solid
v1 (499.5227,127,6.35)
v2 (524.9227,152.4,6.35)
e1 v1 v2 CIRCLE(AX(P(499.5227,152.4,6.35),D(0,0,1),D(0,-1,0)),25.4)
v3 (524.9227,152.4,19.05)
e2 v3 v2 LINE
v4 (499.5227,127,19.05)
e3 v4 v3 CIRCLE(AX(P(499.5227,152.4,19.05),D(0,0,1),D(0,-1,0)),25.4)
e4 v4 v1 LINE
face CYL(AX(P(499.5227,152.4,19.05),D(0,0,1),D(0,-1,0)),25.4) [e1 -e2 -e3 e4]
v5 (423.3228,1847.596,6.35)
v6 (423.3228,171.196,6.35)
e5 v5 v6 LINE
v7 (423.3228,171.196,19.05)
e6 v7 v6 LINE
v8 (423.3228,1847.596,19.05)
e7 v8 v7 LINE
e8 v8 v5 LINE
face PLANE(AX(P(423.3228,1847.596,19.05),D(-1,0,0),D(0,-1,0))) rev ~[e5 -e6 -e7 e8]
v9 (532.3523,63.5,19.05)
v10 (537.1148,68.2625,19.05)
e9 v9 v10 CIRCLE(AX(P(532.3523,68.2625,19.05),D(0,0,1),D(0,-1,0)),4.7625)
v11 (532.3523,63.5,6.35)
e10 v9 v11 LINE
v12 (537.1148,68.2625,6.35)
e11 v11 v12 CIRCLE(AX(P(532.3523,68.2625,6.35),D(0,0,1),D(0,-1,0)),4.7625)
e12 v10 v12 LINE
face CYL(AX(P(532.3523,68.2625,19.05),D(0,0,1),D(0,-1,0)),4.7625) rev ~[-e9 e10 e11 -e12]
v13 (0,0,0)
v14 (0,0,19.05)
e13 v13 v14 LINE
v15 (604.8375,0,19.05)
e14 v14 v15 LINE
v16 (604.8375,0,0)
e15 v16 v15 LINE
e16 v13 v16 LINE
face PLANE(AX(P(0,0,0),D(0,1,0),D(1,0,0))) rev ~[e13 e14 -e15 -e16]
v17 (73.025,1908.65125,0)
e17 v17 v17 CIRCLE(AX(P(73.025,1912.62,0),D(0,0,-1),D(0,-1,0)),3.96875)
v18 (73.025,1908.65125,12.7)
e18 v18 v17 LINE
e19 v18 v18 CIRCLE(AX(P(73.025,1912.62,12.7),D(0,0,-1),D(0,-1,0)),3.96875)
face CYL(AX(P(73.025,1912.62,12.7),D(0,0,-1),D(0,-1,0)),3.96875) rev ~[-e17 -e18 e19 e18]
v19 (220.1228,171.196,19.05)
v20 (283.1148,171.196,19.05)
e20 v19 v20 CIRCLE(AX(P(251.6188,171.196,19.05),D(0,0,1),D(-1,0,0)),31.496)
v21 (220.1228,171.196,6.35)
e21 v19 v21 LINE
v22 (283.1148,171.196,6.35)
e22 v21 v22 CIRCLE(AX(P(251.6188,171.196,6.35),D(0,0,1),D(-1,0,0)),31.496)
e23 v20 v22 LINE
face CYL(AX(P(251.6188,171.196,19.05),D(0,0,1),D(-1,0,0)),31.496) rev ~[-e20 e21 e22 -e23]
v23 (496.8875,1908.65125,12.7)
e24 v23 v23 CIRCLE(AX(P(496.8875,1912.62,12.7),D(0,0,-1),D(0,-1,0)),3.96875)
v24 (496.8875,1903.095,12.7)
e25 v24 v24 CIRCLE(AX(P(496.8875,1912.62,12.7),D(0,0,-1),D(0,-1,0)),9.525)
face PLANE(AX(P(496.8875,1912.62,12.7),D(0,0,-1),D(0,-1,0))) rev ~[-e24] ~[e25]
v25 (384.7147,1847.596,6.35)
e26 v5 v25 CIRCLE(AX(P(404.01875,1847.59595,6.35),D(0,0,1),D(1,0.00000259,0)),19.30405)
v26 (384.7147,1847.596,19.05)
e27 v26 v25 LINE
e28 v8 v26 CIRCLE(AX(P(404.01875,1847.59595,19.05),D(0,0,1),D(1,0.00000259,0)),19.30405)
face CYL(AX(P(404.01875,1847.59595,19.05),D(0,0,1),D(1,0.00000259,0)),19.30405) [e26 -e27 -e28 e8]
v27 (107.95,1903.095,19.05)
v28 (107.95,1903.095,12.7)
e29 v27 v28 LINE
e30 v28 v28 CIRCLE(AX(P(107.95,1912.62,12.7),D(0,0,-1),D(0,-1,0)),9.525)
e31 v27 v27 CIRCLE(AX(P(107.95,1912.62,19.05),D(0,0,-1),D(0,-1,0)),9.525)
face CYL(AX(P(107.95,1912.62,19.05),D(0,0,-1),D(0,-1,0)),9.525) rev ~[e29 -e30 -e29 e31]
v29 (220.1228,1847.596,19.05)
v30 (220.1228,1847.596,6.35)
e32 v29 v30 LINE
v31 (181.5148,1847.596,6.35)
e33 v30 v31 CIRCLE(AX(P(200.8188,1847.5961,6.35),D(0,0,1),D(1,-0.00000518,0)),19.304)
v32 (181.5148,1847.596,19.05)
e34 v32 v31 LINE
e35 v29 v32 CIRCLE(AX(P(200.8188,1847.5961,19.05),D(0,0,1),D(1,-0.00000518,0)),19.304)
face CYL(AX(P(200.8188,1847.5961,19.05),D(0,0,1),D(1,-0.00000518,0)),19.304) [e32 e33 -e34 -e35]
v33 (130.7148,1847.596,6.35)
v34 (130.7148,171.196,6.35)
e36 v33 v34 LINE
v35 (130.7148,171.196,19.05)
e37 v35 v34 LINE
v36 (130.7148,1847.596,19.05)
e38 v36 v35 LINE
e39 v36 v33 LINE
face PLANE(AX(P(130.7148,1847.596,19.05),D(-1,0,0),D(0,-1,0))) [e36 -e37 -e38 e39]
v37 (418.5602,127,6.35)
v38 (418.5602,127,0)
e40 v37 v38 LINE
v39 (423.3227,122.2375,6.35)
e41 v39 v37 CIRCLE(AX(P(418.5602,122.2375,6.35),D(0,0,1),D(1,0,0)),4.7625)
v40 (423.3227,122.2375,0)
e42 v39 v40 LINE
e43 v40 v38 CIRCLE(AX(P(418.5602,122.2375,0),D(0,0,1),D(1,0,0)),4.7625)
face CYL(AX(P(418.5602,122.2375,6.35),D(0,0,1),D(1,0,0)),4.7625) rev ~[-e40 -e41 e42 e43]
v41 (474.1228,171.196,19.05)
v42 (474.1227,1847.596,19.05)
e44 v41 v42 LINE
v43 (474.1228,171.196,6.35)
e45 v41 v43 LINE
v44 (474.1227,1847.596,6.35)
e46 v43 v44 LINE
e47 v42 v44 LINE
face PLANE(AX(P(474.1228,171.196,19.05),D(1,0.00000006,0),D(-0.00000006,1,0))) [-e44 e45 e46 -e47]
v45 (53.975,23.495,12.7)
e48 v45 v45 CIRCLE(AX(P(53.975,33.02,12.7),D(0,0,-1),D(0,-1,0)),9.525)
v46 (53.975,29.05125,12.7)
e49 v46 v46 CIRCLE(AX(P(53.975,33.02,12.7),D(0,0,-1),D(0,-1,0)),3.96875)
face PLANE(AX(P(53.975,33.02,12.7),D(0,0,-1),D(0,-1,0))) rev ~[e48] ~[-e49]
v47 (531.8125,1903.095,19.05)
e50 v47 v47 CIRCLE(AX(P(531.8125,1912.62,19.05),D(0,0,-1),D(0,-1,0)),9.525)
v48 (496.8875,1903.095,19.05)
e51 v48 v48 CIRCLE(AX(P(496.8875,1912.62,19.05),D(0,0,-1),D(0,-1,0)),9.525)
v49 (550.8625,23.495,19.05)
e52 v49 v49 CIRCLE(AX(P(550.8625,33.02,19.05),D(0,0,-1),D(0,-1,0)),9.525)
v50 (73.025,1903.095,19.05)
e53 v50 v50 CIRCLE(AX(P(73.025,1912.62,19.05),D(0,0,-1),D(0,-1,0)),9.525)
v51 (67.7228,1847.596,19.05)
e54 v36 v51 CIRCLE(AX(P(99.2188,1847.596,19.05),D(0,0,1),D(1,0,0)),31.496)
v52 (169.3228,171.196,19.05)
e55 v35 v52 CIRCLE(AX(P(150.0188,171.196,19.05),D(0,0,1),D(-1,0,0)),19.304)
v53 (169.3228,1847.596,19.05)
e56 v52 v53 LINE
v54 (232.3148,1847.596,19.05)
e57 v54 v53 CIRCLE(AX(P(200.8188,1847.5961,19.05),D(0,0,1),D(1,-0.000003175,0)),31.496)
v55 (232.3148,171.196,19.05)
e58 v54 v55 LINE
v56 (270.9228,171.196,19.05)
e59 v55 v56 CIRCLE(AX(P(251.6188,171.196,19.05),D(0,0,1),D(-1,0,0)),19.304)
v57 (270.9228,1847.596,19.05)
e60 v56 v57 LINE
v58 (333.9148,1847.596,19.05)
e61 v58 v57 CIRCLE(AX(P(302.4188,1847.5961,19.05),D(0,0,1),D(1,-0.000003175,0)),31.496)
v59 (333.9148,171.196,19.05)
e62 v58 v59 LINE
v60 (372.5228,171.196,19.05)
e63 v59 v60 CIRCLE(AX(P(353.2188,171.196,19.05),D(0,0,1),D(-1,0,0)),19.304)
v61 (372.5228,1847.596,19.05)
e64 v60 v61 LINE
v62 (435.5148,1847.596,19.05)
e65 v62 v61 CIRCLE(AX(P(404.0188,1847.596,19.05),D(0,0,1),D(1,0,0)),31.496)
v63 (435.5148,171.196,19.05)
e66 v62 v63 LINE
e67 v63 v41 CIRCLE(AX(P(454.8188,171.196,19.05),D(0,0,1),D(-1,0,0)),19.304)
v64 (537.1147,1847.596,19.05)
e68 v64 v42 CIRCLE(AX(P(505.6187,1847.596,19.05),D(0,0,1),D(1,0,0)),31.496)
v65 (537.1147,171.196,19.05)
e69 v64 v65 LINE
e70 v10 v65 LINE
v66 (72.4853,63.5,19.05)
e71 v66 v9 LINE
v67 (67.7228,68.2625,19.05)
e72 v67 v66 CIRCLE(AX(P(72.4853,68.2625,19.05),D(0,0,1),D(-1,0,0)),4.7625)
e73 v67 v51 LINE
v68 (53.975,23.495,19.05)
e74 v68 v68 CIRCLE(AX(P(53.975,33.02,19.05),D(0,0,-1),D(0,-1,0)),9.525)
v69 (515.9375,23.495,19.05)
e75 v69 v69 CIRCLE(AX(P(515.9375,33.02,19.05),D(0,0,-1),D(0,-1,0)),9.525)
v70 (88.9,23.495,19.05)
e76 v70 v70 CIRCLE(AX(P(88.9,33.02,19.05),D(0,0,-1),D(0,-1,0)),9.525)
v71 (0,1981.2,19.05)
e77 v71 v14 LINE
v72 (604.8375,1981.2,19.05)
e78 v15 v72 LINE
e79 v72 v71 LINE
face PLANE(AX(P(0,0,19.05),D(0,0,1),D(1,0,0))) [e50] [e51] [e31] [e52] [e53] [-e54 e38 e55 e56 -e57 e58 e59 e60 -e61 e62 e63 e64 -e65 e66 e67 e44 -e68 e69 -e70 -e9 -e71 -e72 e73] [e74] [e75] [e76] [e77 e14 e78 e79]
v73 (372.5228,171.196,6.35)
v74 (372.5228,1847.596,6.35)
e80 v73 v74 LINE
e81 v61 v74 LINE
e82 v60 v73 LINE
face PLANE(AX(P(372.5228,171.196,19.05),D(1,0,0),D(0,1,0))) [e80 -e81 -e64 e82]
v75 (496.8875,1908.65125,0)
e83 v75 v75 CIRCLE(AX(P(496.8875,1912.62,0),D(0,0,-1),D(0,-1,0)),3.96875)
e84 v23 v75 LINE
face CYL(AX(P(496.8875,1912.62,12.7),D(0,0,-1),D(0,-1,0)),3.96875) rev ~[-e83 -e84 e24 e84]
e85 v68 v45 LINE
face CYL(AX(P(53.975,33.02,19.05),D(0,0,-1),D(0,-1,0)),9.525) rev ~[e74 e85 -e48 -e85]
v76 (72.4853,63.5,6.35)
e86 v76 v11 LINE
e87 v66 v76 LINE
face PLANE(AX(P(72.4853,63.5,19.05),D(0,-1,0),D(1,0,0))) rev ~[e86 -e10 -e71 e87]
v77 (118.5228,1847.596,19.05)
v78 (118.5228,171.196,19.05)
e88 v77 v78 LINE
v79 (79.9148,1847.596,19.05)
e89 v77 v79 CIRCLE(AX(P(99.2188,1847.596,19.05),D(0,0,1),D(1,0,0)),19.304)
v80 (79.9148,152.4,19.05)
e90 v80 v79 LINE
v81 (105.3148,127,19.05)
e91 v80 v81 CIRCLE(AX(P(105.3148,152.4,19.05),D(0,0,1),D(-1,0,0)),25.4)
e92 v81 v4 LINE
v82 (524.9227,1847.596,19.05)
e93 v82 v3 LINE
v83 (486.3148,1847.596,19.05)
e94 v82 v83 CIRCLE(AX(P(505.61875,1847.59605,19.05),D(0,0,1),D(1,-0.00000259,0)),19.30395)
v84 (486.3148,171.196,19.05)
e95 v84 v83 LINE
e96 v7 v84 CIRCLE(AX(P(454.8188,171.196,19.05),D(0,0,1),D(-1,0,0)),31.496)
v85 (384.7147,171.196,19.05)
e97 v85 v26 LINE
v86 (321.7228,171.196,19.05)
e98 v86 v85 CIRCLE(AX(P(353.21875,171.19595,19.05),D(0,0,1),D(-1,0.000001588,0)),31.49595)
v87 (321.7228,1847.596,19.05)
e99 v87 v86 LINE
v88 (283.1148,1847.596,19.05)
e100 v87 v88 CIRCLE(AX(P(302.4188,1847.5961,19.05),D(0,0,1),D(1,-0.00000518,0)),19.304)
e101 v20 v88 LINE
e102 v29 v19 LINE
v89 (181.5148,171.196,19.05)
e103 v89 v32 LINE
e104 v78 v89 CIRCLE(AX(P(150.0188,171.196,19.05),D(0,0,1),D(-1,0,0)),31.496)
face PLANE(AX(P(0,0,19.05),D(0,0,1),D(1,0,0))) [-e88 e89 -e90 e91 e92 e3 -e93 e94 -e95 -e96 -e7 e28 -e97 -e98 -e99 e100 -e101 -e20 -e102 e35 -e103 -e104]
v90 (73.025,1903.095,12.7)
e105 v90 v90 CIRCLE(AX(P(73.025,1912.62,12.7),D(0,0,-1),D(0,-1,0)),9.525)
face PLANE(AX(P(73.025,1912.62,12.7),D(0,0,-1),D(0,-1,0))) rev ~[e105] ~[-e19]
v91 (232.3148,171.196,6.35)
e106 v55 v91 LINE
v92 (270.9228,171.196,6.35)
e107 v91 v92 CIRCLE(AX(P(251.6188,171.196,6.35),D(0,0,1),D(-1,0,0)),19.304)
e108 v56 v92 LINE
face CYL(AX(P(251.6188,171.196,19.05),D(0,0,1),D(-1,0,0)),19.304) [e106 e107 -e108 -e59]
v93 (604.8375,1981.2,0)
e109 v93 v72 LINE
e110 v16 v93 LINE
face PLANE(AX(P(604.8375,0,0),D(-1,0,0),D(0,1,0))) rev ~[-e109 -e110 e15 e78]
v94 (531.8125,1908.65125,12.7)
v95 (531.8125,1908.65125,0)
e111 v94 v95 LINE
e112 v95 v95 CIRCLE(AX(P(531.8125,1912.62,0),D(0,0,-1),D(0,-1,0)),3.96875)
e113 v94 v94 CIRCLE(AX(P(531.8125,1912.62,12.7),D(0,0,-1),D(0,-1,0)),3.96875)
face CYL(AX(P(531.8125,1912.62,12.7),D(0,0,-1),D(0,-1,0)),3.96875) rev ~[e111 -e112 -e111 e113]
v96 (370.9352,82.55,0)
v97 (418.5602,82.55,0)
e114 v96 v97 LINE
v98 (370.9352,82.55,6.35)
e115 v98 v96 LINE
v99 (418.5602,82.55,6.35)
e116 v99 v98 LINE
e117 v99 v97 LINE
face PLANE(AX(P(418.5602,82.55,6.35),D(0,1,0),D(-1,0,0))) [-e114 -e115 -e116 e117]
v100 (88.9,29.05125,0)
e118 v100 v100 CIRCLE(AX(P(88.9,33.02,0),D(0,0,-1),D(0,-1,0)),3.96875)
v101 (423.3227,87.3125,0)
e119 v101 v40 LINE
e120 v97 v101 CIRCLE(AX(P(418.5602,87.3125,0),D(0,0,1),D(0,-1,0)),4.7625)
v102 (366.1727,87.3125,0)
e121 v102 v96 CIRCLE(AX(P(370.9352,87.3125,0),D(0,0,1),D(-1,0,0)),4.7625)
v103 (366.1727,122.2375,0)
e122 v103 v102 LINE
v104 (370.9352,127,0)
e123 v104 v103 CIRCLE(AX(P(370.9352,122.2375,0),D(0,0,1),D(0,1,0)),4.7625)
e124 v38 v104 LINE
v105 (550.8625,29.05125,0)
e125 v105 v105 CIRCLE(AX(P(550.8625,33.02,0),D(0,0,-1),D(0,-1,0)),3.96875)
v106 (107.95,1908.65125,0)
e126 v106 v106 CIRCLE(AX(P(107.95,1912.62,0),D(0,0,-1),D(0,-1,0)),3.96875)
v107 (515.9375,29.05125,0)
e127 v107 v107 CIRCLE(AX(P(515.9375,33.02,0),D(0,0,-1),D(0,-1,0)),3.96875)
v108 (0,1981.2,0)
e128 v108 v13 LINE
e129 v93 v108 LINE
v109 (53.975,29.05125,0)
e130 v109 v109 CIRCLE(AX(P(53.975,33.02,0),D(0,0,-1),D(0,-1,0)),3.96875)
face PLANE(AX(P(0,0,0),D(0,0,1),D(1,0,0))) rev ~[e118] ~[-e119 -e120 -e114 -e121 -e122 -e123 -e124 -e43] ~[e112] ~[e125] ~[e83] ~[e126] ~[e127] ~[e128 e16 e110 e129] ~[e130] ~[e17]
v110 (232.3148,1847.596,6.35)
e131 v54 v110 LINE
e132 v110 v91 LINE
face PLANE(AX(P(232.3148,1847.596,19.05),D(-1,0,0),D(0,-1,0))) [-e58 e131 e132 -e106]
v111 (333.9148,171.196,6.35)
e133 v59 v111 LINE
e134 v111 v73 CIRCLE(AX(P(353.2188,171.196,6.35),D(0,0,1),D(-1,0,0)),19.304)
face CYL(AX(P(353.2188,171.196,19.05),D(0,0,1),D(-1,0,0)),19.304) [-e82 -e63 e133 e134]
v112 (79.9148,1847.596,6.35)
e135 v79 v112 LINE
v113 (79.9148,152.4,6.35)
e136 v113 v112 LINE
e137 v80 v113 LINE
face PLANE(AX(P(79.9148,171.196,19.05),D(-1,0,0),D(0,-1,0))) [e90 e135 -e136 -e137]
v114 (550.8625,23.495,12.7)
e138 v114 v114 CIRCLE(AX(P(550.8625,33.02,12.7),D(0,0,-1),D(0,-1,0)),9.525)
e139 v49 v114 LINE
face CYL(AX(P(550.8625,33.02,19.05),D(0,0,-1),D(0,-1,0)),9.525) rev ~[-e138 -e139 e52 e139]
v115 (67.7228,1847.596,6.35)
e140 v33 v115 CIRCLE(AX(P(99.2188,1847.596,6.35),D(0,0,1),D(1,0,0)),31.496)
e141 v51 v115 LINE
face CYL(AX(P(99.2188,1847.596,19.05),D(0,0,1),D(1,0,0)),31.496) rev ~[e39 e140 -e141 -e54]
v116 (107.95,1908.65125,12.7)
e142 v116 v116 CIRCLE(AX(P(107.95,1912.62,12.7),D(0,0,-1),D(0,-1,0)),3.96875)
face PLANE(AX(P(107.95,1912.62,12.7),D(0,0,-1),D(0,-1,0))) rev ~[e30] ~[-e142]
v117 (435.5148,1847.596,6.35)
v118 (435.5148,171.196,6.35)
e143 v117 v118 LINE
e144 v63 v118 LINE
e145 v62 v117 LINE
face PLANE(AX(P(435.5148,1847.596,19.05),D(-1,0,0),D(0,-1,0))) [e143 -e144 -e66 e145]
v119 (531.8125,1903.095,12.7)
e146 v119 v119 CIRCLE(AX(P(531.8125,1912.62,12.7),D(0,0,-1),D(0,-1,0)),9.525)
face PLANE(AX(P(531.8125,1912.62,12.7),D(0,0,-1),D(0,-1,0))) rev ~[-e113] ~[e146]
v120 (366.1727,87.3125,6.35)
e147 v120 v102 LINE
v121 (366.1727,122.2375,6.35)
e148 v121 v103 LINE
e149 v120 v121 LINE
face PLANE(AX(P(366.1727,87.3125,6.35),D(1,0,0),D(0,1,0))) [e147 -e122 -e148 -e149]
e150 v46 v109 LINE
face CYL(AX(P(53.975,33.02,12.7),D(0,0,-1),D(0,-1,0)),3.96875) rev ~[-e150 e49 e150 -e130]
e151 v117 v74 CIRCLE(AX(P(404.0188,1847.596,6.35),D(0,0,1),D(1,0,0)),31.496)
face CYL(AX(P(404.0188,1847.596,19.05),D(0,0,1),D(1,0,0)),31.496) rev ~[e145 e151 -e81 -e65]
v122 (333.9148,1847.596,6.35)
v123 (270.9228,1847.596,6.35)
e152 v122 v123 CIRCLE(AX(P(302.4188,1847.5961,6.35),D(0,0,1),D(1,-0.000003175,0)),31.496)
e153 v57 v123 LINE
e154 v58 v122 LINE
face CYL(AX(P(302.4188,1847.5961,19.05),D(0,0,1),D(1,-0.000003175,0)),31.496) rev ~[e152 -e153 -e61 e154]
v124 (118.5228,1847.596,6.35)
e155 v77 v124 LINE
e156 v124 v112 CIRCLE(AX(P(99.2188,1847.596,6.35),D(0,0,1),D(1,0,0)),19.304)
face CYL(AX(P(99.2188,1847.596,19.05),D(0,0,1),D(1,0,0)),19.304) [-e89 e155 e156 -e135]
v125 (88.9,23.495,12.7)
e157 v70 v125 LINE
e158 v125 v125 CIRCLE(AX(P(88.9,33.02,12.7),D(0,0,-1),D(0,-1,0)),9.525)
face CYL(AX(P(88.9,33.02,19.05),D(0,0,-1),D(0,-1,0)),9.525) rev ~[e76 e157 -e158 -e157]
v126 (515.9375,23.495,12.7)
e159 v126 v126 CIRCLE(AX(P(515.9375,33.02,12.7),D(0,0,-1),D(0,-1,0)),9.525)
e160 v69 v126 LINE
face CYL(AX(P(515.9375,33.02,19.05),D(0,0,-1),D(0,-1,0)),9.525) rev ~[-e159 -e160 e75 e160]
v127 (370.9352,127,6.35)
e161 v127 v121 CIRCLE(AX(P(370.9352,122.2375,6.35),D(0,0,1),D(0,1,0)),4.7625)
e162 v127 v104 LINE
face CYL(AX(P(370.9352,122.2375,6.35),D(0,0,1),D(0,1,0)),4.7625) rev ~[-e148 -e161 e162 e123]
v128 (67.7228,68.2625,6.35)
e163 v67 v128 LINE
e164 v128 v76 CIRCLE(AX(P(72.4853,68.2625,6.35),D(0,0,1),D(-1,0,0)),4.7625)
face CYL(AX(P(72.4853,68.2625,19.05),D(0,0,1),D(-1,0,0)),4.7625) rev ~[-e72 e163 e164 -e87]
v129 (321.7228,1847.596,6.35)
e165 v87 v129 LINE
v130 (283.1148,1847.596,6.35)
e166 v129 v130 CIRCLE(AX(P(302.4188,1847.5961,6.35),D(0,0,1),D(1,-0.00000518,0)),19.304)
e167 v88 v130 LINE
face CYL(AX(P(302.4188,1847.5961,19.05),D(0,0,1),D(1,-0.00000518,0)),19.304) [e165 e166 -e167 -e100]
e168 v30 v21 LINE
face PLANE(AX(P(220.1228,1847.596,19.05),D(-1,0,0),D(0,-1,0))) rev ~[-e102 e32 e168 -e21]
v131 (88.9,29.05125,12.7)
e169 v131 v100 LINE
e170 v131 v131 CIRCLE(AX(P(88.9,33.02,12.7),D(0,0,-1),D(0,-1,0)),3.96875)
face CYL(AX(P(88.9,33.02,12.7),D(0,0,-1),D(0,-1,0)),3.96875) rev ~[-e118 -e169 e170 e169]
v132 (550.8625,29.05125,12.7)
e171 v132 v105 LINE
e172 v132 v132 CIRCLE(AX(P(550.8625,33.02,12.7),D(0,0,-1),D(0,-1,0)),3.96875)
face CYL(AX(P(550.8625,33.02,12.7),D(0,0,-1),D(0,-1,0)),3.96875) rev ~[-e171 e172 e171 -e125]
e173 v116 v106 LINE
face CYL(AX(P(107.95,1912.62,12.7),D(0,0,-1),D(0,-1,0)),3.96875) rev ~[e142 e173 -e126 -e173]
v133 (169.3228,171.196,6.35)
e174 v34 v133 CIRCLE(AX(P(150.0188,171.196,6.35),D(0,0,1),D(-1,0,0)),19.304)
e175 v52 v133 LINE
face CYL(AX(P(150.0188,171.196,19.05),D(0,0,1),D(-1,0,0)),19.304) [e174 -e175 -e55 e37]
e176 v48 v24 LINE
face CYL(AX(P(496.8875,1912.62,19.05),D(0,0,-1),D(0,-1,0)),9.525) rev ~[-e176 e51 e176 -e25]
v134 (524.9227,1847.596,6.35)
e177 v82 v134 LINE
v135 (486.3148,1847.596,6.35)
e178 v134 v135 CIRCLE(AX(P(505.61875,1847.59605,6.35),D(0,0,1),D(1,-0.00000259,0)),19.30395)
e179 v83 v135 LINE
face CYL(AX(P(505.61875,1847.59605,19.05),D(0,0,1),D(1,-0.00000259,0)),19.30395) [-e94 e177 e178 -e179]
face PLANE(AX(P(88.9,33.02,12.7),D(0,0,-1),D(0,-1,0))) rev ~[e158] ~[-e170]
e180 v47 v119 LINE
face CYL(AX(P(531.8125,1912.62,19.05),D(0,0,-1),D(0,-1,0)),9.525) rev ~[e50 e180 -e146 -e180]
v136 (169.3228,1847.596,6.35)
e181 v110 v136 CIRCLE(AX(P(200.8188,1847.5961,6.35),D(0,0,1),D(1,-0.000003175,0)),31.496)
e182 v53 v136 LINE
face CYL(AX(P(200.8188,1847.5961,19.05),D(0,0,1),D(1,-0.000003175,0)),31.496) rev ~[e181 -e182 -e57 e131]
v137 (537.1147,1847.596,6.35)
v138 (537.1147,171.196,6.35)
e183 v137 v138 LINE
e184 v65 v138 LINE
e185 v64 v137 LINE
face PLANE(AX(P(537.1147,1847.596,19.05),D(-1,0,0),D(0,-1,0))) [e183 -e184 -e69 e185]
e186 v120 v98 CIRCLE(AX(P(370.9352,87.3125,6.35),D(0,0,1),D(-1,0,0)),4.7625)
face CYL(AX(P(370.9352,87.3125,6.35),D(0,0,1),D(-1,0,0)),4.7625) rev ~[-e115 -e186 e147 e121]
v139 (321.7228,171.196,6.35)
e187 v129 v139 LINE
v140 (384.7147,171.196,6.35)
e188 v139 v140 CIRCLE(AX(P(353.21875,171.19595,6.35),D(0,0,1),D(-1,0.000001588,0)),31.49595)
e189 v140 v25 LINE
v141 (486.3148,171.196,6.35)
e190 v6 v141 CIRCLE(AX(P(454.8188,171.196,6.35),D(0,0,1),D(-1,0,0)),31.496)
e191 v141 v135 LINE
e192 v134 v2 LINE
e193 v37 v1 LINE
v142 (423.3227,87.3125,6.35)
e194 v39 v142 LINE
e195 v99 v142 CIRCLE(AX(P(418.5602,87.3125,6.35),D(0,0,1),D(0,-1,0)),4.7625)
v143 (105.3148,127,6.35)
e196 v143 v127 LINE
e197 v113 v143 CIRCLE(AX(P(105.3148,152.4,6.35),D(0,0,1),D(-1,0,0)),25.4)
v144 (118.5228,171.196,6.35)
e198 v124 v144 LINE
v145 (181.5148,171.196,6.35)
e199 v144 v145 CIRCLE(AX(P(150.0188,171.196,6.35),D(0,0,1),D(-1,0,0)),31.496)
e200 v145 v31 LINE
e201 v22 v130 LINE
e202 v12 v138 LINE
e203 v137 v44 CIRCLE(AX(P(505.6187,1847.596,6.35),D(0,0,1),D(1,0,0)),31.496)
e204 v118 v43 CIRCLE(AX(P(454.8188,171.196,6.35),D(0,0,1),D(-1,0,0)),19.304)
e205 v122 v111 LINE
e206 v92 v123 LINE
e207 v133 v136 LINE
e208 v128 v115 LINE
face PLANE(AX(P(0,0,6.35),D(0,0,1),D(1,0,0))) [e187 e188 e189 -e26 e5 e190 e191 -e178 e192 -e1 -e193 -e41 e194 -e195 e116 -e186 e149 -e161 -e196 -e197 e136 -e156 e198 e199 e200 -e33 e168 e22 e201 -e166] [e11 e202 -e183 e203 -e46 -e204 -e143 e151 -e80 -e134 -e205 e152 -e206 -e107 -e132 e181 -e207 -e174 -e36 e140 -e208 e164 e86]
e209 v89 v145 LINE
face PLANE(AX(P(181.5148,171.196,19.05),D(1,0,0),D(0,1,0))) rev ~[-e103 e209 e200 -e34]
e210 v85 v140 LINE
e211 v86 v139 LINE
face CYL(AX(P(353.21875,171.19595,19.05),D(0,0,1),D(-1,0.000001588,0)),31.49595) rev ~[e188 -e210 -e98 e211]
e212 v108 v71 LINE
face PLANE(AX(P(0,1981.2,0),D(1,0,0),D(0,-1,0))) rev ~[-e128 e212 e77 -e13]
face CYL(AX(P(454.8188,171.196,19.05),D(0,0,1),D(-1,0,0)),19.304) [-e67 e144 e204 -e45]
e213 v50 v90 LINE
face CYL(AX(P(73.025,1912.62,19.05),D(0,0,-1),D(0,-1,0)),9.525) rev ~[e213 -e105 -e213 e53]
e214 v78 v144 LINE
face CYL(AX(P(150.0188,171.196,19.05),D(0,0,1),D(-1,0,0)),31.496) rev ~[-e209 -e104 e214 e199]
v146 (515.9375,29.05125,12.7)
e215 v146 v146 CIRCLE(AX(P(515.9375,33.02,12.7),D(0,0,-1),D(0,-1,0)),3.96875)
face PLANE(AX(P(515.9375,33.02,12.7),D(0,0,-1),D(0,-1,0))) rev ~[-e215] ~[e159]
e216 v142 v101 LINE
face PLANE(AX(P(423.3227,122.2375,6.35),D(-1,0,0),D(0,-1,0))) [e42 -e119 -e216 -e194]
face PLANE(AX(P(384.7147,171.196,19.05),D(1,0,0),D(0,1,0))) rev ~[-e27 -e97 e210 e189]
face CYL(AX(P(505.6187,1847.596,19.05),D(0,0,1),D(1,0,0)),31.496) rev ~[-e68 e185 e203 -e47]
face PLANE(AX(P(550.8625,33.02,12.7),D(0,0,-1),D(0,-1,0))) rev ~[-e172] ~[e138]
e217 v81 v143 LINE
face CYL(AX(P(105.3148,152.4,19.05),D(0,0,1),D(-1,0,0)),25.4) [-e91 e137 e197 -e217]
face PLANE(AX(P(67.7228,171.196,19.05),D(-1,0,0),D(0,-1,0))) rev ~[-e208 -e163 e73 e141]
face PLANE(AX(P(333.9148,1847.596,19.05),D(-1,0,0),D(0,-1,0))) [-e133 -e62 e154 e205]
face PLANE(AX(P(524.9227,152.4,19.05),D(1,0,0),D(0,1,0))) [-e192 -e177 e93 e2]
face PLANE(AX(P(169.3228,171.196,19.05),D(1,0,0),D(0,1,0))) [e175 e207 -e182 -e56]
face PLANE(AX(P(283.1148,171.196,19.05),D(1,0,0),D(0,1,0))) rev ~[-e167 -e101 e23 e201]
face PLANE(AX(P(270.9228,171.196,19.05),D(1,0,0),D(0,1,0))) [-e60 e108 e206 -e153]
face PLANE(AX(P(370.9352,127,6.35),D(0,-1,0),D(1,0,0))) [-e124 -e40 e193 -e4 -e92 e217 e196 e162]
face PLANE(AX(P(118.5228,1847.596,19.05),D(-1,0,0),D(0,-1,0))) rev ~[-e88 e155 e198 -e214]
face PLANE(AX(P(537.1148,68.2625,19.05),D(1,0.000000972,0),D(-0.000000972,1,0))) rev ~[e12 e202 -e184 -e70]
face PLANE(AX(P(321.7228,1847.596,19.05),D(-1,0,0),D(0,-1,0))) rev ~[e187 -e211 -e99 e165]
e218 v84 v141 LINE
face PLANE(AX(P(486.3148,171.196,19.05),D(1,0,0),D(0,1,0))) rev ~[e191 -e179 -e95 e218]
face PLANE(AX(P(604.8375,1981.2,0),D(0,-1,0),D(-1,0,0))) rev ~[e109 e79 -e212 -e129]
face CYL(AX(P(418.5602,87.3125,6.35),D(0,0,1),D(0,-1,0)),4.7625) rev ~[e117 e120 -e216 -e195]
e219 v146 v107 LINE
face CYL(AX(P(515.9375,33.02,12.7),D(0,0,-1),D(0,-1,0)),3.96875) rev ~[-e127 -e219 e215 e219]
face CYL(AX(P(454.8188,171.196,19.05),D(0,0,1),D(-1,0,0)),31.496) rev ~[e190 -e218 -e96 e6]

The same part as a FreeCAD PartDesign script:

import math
import FreeCAD as App
import Part
import Sketcher
from FreeCAD import Vector
Q = App.Units.Quantity

doc = App.newDocument("Part")
body = doc.addObject("PartDesign::Body", "Body")

# Sketch on XY plane
sketch1 = body.newObject("Sketcher::SketchObject", "Sketch")
sketch1.AttachmentSupport = (doc.getObject("XY_Plane"), [""])
sketch1.MapMode = "FlatFace"
sketch1.addGeometry([
    Part.LineSegment(Vector(0, 1981, 0), Vector(0, 0, 0)),
    Part.LineSegment(Vector(0, 0, 0), Vector(605, 0, 0)),
    Part.LineSegment(Vector(605, 0, 0), Vector(605, 1981, 0)),
    Part.LineSegment(Vector(605, 1981, 0), Vector(0, 1981, 0)),
], False)
sketch1.addConstraint([
    Sketcher.Constraint("Coincident", 0, 2, 1, 1),
    Sketcher.Constraint("Coincident", 1, 2, 2, 1),
    Sketcher.Constraint("Coincident", 2, 2, 3, 1),
    Sketcher.Constraint("Coincident", 3, 2, 0, 1),
    Sketcher.Constraint("Vertical", 0),
    Sketcher.Constraint("Horizontal", 1),
    Sketcher.Constraint("Vertical", 2),
    Sketcher.Constraint("Horizontal", 3),
    Sketcher.Constraint("Coincident", 0, 2, -1, 1),
    Sketcher.Constraint("DistanceY", 0, 2, 0, 1, Q("78 in")),
    Sketcher.Constraint("DistanceX", 1, 1, 1, 2, Q("23.8125 in")),
])
pad1 = body.newObject("PartDesign::Pad", "Pad")
pad1.Profile = sketch1
pad1.Length = Q("0.75 in")

# Sketch on XY plane
sketch2 = body.newObject("Sketcher::SketchObject", "Sketch001")
sketch2.AttachmentSupport = (doc.getObject("XY_Plane"), [""])
sketch2.MapMode = "FlatFace"
sketch2.AttachmentOffset = App.Placement(Vector(0, 0, 0.75 * 25.4), App.Rotation())
sketch2.addGeometry([
    Part.LineSegment(Vector(67.7, 1847.6, 0), Vector(67.7, 68.3, 0)),  # 0
    Part.ArcOfCircle(Part.Circle(Vector(72.5, 68.3, 0), Vector(0, 0, 1), 4.8), math.radians(180), math.radians(270)),  # 1
    Part.LineSegment(Vector(72.5, 63.5, 0), Vector(532.4, 63.5, 0)),  # 2
    Part.ArcOfCircle(Part.Circle(Vector(532.4, 68.3, 0), Vector(0, 0, 1), 4.8), math.radians(-90), math.radians(0)),  # 3
    Part.LineSegment(Vector(537.1, 68.3, 0), Vector(537.1, 171.2, 0)),  # 4
    Part.LineSegment(Vector(537.1, 171.2, 0), Vector(537.1, 1847.6, 0)),  # 5
    Part.ArcOfCircle(Part.Circle(Vector(505.6, 1847.6, 0), Vector(0, 0, 1), 31.5), math.radians(0), math.radians(180)),  # 6
    Part.LineSegment(Vector(474.1, 1847.6, 0), Vector(474.1, 171.2, 0)),  # 7
    Part.ArcOfCircle(Part.Circle(Vector(454.8, 171.2, 0), Vector(0, 0, 1), 19.3), math.radians(180), math.radians(360)),  # 8
    Part.LineSegment(Vector(435.5, 171.2, 0), Vector(435.5, 1847.6, 0)),  # 9
    Part.ArcOfCircle(Part.Circle(Vector(404, 1847.6, 0), Vector(0, 0, 1), 31.5), math.radians(0), math.radians(180)),  # 10
    Part.LineSegment(Vector(372.5, 1847.6, 0), Vector(372.5, 171.2, 0)),  # 11
    Part.ArcOfCircle(Part.Circle(Vector(353.2, 171.2, 0), Vector(0, 0, 1), 19.3), math.radians(180), math.radians(360)),  # 12
    Part.LineSegment(Vector(333.9, 171.2, 0), Vector(333.9, 1847.6, 0)),  # 13
    Part.ArcOfCircle(Part.Circle(Vector(302.4, 1847.6, 0), Vector(0, 0, 1), 31.5), math.radians(0), math.radians(180)),  # 14
    Part.LineSegment(Vector(270.9, 1847.6, 0), Vector(270.9, 171.2, 0)),  # 15
    Part.ArcOfCircle(Part.Circle(Vector(251.6, 171.2, 0), Vector(0, 0, 1), 19.3), math.radians(180), math.radians(360)),  # 16
    Part.LineSegment(Vector(232.3, 171.2, 0), Vector(232.3, 1847.6, 0)),  # 17
    Part.ArcOfCircle(Part.Circle(Vector(200.8, 1847.6, 0), Vector(0, 0, 1), 31.5), math.radians(0), math.radians(180)),  # 18
    Part.LineSegment(Vector(169.3, 1847.6, 0), Vector(169.3, 171.2, 0)),  # 19
    Part.ArcOfCircle(Part.Circle(Vector(150, 171.2, 0), Vector(0, 0, 1), 19.3), math.radians(180), math.radians(360)),  # 20
    Part.LineSegment(Vector(130.7, 171.2, 0), Vector(130.7, 1847.6, 0)),  # 21
    Part.ArcOfCircle(Part.Circle(Vector(99.2, 1847.6, 0), Vector(0, 0, 1), 31.5), math.radians(0), math.radians(180)),  # 22
    Part.LineSegment(Vector(79.9, 152.4, 0), Vector(79.9, 1847.6, 0)),  # 23
    Part.ArcOfCircle(Part.Circle(Vector(99.2, 1847.6, 0), Vector(0, 0, 1), 19.3), math.radians(0), math.radians(180)),  # 24
    Part.LineSegment(Vector(118.5, 1847.6, 0), Vector(118.5, 171.2, 0)),  # 25
    Part.ArcOfCircle(Part.Circle(Vector(150, 171.2, 0), Vector(0, 0, 1), 31.5), math.radians(180), math.radians(360)),  # 26
    Part.LineSegment(Vector(181.5, 171.2, 0), Vector(181.5, 1847.6, 0)),  # 27
    Part.ArcOfCircle(Part.Circle(Vector(200.8, 1847.6, 0), Vector(0, 0, 1), 19.3), math.radians(0), math.radians(180)),  # 28
    Part.LineSegment(Vector(220.1, 1847.6, 0), Vector(220.1, 171.2, 0)),  # 29
    Part.ArcOfCircle(Part.Circle(Vector(251.6, 171.2, 0), Vector(0, 0, 1), 31.5), math.radians(180), math.radians(360)),  # 30
    Part.LineSegment(Vector(283.1, 171.2, 0), Vector(283.1, 1847.6, 0)),  # 31
    Part.ArcOfCircle(Part.Circle(Vector(302.4, 1847.6, 0), Vector(0, 0, 1), 19.3), math.radians(0), math.radians(180)),  # 32
    Part.LineSegment(Vector(321.7, 1847.6, 0), Vector(321.7, 171.2, 0)),  # 33
    Part.ArcOfCircle(Part.Circle(Vector(353.2, 171.2, 0), Vector(0, 0, 1), 31.5), math.radians(180), math.radians(360)),  # 34
    Part.LineSegment(Vector(384.7, 171.2, 0), Vector(384.7, 1847.6, 0)),  # 35
    Part.ArcOfCircle(Part.Circle(Vector(404, 1847.6, 0), Vector(0, 0, 1), 19.3), math.radians(0), math.radians(180)),  # 36
    Part.LineSegment(Vector(423.3, 1847.6, 0), Vector(423.3, 171.2, 0)),  # 37
    Part.ArcOfCircle(Part.Circle(Vector(454.8, 171.2, 0), Vector(0, 0, 1), 31.5), math.radians(180), math.radians(360)),  # 38
    Part.LineSegment(Vector(486.3, 171.2, 0), Vector(486.3, 1847.6, 0)),  # 39
    Part.ArcOfCircle(Part.Circle(Vector(505.6, 1847.6, 0), Vector(0, 0, 1), 19.3), math.radians(0), math.radians(180)),  # 40
    Part.LineSegment(Vector(524.9, 1847.6, 0), Vector(524.9, 152.4, 0)),  # 41
    Part.ArcOfCircle(Part.Circle(Vector(499.5, 152.4, 0), Vector(0, 0, 1), 25.4), math.radians(-90), math.radians(0)),  # 42
    Part.LineSegment(Vector(499.5, 127, 0), Vector(105.3, 127, 0)),  # 43
    Part.ArcOfCircle(Part.Circle(Vector(105.3, 152.4, 0), Vector(0, 0, 1), 25.4), math.radians(180), math.radians(270)),  # 44
], False)
sketch2.addConstraint([
    Sketcher.Constraint("Tangent", 0, 2, 1, 1),
    Sketcher.Constraint("Tangent", 1, 2, 2, 1),
    Sketcher.Constraint("Tangent", 2, 2, 3, 1),
    Sketcher.Constraint("Tangent", 3, 2, 4, 1),
    Sketcher.Constraint("Coincident", 4, 2, 5, 1),
    Sketcher.Constraint("Tangent", 5, 2, 6, 1),
    Sketcher.Constraint("Tangent", 6, 2, 7, 1),
    Sketcher.Constraint("Tangent", 7, 2, 8, 2),
    Sketcher.Constraint("Tangent", 8, 1, 9, 1),
    Sketcher.Constraint("Tangent", 9, 2, 10, 1),
    Sketcher.Constraint("Tangent", 10, 2, 11, 1),
    Sketcher.Constraint("Tangent", 11, 2, 12, 2),
    Sketcher.Constraint("Tangent", 12, 1, 13, 1),
    Sketcher.Constraint("Tangent", 13, 2, 14, 1),
    Sketcher.Constraint("Tangent", 14, 2, 15, 1),
    Sketcher.Constraint("Tangent", 15, 2, 16, 2),
    Sketcher.Constraint("Tangent", 16, 1, 17, 1),
    Sketcher.Constraint("Tangent", 17, 2, 18, 1),
    Sketcher.Constraint("Tangent", 18, 2, 19, 1),
    Sketcher.Constraint("Tangent", 19, 2, 20, 2),
    Sketcher.Constraint("Tangent", 20, 1, 21, 1),
    Sketcher.Constraint("Tangent", 21, 2, 22, 1),
    Sketcher.Constraint("Tangent", 22, 2, 0, 1),
    Sketcher.Constraint("Tangent", 23, 2, 24, 2),
    Sketcher.Constraint("Tangent", 24, 1, 25, 1),
    Sketcher.Constraint("Tangent", 25, 2, 26, 1),
    Sketcher.Constraint("Tangent", 26, 2, 27, 1),
    Sketcher.Constraint("Tangent", 27, 2, 28, 2),
    Sketcher.Constraint("Tangent", 28, 1, 29, 1),
    Sketcher.Constraint("Tangent", 29, 2, 30, 1),
    Sketcher.Constraint("Tangent", 30, 2, 31, 1),
    Sketcher.Constraint("Tangent", 31, 2, 32, 2),
    Sketcher.Constraint("Tangent", 32, 1, 33, 1),
    Sketcher.Constraint("Tangent", 33, 2, 34, 1),
    Sketcher.Constraint("Tangent", 34, 2, 35, 1),
    Sketcher.Constraint("Tangent", 35, 2, 36, 2),
    Sketcher.Constraint("Tangent", 36, 1, 37, 1),
    Sketcher.Constraint("Tangent", 37, 2, 38, 1),
    Sketcher.Constraint("Tangent", 38, 2, 39, 1),
    Sketcher.Constraint("Tangent", 39, 2, 40, 2),
    Sketcher.Constraint("Tangent", 40, 1, 41, 1),
    Sketcher.Constraint("Tangent", 41, 2, 42, 2),
    Sketcher.Constraint("Tangent", 42, 1, 43, 1),
    Sketcher.Constraint("Tangent", 43, 2, 44, 2),
    Sketcher.Constraint("Tangent", 44, 1, 23, 1),
    Sketcher.Constraint("Vertical", 0),
    Sketcher.Constraint("Horizontal", 2),
    Sketcher.Constraint("Vertical", 4),
    Sketcher.Constraint("Vertical", 5),
    Sketcher.Constraint("Vertical", 7),
    Sketcher.Constraint("Vertical", 9),
    Sketcher.Constraint("Vertical", 11),
    Sketcher.Constraint("Vertical", 13),
    Sketcher.Constraint("Vertical", 15),
    Sketcher.Constraint("Vertical", 17),
    Sketcher.Constraint("Vertical", 19),
    Sketcher.Constraint("Vertical", 21),
    Sketcher.Constraint("Vertical", 23),
    Sketcher.Constraint("Vertical", 25),
    Sketcher.Constraint("Vertical", 27),
    Sketcher.Constraint("Vertical", 29),
    Sketcher.Constraint("Vertical", 31),
    Sketcher.Constraint("Vertical", 33),
    Sketcher.Constraint("Vertical", 35),
    Sketcher.Constraint("Vertical", 37),
    Sketcher.Constraint("Vertical", 39),
    Sketcher.Constraint("Vertical", 41),
    Sketcher.Constraint("Horizontal", 43),
    Sketcher.Constraint("Coincident", 24, 3, 22, 3),
    Sketcher.Constraint("Coincident", 26, 3, 20, 3),
    Sketcher.Constraint("Coincident", 28, 3, 18, 3),
    Sketcher.Constraint("Coincident", 30, 3, 16, 3),
    Sketcher.Constraint("Coincident", 32, 3, 14, 3),
    Sketcher.Constraint("Coincident", 34, 3, 12, 3),
    Sketcher.Constraint("Coincident", 36, 3, 10, 3),
    Sketcher.Constraint("Coincident", 38, 3, 8, 3),
    Sketcher.Constraint("Coincident", 40, 3, 6, 3),
    Sketcher.Constraint("Equal", 1, 3),
    Sketcher.Constraint("Equal", 6, 10),
    Sketcher.Constraint("Equal", 8, 12),
    Sketcher.Constraint("Equal", 10, 14),
    Sketcher.Constraint("Equal", 12, 16),
    Sketcher.Constraint("Equal", 14, 18),
    Sketcher.Constraint("Equal", 16, 20),
    Sketcher.Constraint("Equal", 18, 22),
    Sketcher.Constraint("Equal", 20, 24),
    Sketcher.Constraint("Equal", 42, 44),
    Sketcher.Constraint("Horizontal", 6, 3, 10, 3),
    Sketcher.Constraint("Horizontal", 8, 3, 12, 3),
    Sketcher.Constraint("Horizontal", 10, 3, 14, 3),
    Sketcher.Constraint("Horizontal", 12, 3, 16, 3),
    Sketcher.Constraint("Horizontal", 14, 3, 18, 3),
    Sketcher.Constraint("Horizontal", 16, 3, 20, 3),
    Sketcher.Constraint("Horizontal", 18, 3, 22, 3),
    Sketcher.Constraint("Horizontal", 38, 3, 4, 2),
    Sketcher.Constraint("Radius", 42, Q("1 in")),
    Sketcher.Constraint("DistanceY", 5, 1, 5, 2, Q("66 in")),
    Sketcher.Constraint("Radius", 1, Q("0.1875 in")),
    Sketcher.Constraint("DistanceY", -1, 1, 1, 2, Q("2.5 in")),
    Sketcher.Constraint("DistanceY", -1, 1, 8, 3, Q("6.74 in")),
    Sketcher.Constraint("Radius", 6, Q("1.24 in")),
    Sketcher.Constraint("Radius", 8, Q("0.76 in")),
    Sketcher.Constraint("DistanceY", -1, 1, 42, 3, Q("6 in")),
    Sketcher.Constraint("DistanceX", -1, 1, 6, 3, Q("19.906248 in")),
])
pocket1 = body.newObject("PartDesign::Pocket", "Pocket")
pocket1.Profile = sketch2
pocket1.Length = Q("0.5 in")

# Sketch on XY plane
sketch3 = body.newObject("Sketcher::SketchObject", "Sketch002")
sketch3.AttachmentSupport = (doc.getObject("XY_Plane"), [""])
sketch3.MapMode = "FlatFace"
sketch3.AttachmentOffset = App.Placement(Vector(0, 0, 0.75 * 25.4), App.Rotation())
sketch3.addGeometry([
    Part.Circle(Vector(73, 1912.6, 0), Vector(0, 0, 1), 4),  # 0
    Part.Circle(Vector(108, 1912.6, 0), Vector(0, 0, 1), 4),  # 1
    Part.Circle(Vector(496.9, 1912.6, 0), Vector(0, 0, 1), 4),  # 2
    Part.Circle(Vector(531.8, 1912.6, 0), Vector(0, 0, 1), 4),  # 3
    Part.Circle(Vector(550.9, 33, 0), Vector(0, 0, 1), 4),  # 4
    Part.Circle(Vector(515.9, 33, 0), Vector(0, 0, 1), 4),  # 5
    Part.Circle(Vector(88.9, 33, 0), Vector(0, 0, 1), 4),  # 6
    Part.Circle(Vector(54, 33, 0), Vector(0, 0, 1), 4),  # 7
], False)
sketch3.addConstraint([
    Sketcher.Constraint("Equal", 0, 1),
    Sketcher.Constraint("Equal", 1, 2),
    Sketcher.Constraint("Equal", 2, 3),
    Sketcher.Constraint("Equal", 3, 4),
    Sketcher.Constraint("Equal", 4, 5),
    Sketcher.Constraint("Equal", 5, 6),
    Sketcher.Constraint("Equal", 6, 7),
    Sketcher.Constraint("Horizontal", 0, 3, 1, 3),
    Sketcher.Constraint("Horizontal", 1, 3, 2, 3),
    Sketcher.Constraint("Horizontal", 2, 3, 3, 3),
    Sketcher.Constraint("Horizontal", 4, 3, 5, 3),
    Sketcher.Constraint("Horizontal", 5, 3, 6, 3),
    Sketcher.Constraint("Horizontal", 6, 3, 7, 3),
    Sketcher.Constraint("Diameter", 0, Q("0.3125 in")),
    Sketcher.Constraint("DistanceY", 4, 3, 3, 3, Q("74 in")),
    Sketcher.Constraint("DistanceY", -1, 1, 0, 3, Q("75.3 in")),
    Sketcher.Constraint("DistanceX", -1, 1, 6, 3, Q("3.5 in")),
    Sketcher.Constraint("DistanceX", -1, 1, 1, 3, Q("4.25 in")),
    Sketcher.Constraint("DistanceX", 3, 3, 4, 3, Q("0.75 in")),
    Sketcher.Constraint("DistanceX", 2, 3, 5, 3, Q("0.75 in")),
    Sketcher.Constraint("DistanceX", 7, 3, 0, 3, Q("0.75 in")),
    Sketcher.Constraint("DistanceX", -1, 1, 0, 3, Q("2.875 in")),
    Sketcher.Constraint("DistanceX", -1, 1, 2, 3, Q("19.5625 in")),
    Sketcher.Constraint("DistanceX", -1, 1, 3, 3, Q("20.9375 in")),
])
doc.recompute()
hole = body.newObject("PartDesign::Hole", "Hole")
hole.Profile = sketch3
hole.ThreadType = "None"
hole.Diameter = Q("0.3125 in")
hole.DepthType = "ThroughAll"
hole.HoleCutType = "Counterbore"
hole.HoleCutDiameter = Q("0.75 in")
hole.HoleCutDepth = Q("0.25 in")

# Sketch on XY plane
sketch4 = body.newObject("Sketcher::SketchObject", "Sketch003")
sketch4.AttachmentSupport = (doc.getObject("XY_Plane"), [""])
sketch4.MapMode = "FlatFace"
sketch4.AttachmentOffset = App.Placement(Vector(0, 0, 0.25 * 25.4), App.Rotation())
sketch4.addGeometry([
    Part.LineSegment(Vector(418.6, 127, 0), Vector(370.9, 127, 0)),  # 0
    Part.ArcOfCircle(Part.Circle(Vector(370.9, 122.2, 0), Vector(0, 0, 1), 4.8), math.radians(90), math.radians(180)),  # 1
    Part.LineSegment(Vector(366.2, 122.2, 0), Vector(366.2, 87.3, 0)),  # 2
    Part.ArcOfCircle(Part.Circle(Vector(370.9, 87.3, 0), Vector(0, 0, 1), 4.8), math.radians(180), math.radians(270)),  # 3
    Part.LineSegment(Vector(370.9, 82.5, 0), Vector(418.6, 82.5, 0)),  # 4
    Part.ArcOfCircle(Part.Circle(Vector(418.6, 87.3, 0), Vector(0, 0, 1), 4.8), math.radians(-90), math.radians(0)),  # 5
    Part.LineSegment(Vector(423.3, 87.3, 0), Vector(423.3, 122.2, 0)),  # 6
    Part.ArcOfCircle(Part.Circle(Vector(418.6, 122.2, 0), Vector(0, 0, 1), 4.8), math.radians(0), math.radians(90)),  # 7
], False)
sketch4.addConstraint([
    Sketcher.Constraint("Tangent", 0, 2, 1, 1),
    Sketcher.Constraint("Tangent", 1, 2, 2, 1),
    Sketcher.Constraint("Tangent", 2, 2, 3, 1),
    Sketcher.Constraint("Tangent", 3, 2, 4, 1),
    Sketcher.Constraint("Tangent", 4, 2, 5, 1),
    Sketcher.Constraint("Tangent", 5, 2, 6, 1),
    Sketcher.Constraint("Tangent", 6, 2, 7, 1),
    Sketcher.Constraint("Tangent", 7, 2, 0, 1),
    Sketcher.Constraint("Horizontal", 0),
    Sketcher.Constraint("Vertical", 2),
    Sketcher.Constraint("Horizontal", 4),
    Sketcher.Constraint("Vertical", 6),
    Sketcher.Constraint("Equal", 1, 3),
    Sketcher.Constraint("Equal", 3, 5),
    Sketcher.Constraint("Equal", 5, 7),
    Sketcher.Constraint("Radius", 1, Q("0.1875 in")),
    Sketcher.Constraint("DistanceY", 3, 2, 0, 2, Q("1.75 in")),
    Sketcher.Constraint("DistanceY", -1, 1, 0, 2, Q("5 in")),
    Sketcher.Constraint("DistanceX", 0, 2, 0, 1, Q("1.875 in")),
    Sketcher.Constraint("DistanceX", -1, 1, 1, 3, Q("370.9352 mm")),
])
pocket2 = body.newObject("PartDesign::Pocket", "Pocket001")
pocket2.Profile = sketch4
pocket2.Type = "UpToFirst"

doc.recompute()
